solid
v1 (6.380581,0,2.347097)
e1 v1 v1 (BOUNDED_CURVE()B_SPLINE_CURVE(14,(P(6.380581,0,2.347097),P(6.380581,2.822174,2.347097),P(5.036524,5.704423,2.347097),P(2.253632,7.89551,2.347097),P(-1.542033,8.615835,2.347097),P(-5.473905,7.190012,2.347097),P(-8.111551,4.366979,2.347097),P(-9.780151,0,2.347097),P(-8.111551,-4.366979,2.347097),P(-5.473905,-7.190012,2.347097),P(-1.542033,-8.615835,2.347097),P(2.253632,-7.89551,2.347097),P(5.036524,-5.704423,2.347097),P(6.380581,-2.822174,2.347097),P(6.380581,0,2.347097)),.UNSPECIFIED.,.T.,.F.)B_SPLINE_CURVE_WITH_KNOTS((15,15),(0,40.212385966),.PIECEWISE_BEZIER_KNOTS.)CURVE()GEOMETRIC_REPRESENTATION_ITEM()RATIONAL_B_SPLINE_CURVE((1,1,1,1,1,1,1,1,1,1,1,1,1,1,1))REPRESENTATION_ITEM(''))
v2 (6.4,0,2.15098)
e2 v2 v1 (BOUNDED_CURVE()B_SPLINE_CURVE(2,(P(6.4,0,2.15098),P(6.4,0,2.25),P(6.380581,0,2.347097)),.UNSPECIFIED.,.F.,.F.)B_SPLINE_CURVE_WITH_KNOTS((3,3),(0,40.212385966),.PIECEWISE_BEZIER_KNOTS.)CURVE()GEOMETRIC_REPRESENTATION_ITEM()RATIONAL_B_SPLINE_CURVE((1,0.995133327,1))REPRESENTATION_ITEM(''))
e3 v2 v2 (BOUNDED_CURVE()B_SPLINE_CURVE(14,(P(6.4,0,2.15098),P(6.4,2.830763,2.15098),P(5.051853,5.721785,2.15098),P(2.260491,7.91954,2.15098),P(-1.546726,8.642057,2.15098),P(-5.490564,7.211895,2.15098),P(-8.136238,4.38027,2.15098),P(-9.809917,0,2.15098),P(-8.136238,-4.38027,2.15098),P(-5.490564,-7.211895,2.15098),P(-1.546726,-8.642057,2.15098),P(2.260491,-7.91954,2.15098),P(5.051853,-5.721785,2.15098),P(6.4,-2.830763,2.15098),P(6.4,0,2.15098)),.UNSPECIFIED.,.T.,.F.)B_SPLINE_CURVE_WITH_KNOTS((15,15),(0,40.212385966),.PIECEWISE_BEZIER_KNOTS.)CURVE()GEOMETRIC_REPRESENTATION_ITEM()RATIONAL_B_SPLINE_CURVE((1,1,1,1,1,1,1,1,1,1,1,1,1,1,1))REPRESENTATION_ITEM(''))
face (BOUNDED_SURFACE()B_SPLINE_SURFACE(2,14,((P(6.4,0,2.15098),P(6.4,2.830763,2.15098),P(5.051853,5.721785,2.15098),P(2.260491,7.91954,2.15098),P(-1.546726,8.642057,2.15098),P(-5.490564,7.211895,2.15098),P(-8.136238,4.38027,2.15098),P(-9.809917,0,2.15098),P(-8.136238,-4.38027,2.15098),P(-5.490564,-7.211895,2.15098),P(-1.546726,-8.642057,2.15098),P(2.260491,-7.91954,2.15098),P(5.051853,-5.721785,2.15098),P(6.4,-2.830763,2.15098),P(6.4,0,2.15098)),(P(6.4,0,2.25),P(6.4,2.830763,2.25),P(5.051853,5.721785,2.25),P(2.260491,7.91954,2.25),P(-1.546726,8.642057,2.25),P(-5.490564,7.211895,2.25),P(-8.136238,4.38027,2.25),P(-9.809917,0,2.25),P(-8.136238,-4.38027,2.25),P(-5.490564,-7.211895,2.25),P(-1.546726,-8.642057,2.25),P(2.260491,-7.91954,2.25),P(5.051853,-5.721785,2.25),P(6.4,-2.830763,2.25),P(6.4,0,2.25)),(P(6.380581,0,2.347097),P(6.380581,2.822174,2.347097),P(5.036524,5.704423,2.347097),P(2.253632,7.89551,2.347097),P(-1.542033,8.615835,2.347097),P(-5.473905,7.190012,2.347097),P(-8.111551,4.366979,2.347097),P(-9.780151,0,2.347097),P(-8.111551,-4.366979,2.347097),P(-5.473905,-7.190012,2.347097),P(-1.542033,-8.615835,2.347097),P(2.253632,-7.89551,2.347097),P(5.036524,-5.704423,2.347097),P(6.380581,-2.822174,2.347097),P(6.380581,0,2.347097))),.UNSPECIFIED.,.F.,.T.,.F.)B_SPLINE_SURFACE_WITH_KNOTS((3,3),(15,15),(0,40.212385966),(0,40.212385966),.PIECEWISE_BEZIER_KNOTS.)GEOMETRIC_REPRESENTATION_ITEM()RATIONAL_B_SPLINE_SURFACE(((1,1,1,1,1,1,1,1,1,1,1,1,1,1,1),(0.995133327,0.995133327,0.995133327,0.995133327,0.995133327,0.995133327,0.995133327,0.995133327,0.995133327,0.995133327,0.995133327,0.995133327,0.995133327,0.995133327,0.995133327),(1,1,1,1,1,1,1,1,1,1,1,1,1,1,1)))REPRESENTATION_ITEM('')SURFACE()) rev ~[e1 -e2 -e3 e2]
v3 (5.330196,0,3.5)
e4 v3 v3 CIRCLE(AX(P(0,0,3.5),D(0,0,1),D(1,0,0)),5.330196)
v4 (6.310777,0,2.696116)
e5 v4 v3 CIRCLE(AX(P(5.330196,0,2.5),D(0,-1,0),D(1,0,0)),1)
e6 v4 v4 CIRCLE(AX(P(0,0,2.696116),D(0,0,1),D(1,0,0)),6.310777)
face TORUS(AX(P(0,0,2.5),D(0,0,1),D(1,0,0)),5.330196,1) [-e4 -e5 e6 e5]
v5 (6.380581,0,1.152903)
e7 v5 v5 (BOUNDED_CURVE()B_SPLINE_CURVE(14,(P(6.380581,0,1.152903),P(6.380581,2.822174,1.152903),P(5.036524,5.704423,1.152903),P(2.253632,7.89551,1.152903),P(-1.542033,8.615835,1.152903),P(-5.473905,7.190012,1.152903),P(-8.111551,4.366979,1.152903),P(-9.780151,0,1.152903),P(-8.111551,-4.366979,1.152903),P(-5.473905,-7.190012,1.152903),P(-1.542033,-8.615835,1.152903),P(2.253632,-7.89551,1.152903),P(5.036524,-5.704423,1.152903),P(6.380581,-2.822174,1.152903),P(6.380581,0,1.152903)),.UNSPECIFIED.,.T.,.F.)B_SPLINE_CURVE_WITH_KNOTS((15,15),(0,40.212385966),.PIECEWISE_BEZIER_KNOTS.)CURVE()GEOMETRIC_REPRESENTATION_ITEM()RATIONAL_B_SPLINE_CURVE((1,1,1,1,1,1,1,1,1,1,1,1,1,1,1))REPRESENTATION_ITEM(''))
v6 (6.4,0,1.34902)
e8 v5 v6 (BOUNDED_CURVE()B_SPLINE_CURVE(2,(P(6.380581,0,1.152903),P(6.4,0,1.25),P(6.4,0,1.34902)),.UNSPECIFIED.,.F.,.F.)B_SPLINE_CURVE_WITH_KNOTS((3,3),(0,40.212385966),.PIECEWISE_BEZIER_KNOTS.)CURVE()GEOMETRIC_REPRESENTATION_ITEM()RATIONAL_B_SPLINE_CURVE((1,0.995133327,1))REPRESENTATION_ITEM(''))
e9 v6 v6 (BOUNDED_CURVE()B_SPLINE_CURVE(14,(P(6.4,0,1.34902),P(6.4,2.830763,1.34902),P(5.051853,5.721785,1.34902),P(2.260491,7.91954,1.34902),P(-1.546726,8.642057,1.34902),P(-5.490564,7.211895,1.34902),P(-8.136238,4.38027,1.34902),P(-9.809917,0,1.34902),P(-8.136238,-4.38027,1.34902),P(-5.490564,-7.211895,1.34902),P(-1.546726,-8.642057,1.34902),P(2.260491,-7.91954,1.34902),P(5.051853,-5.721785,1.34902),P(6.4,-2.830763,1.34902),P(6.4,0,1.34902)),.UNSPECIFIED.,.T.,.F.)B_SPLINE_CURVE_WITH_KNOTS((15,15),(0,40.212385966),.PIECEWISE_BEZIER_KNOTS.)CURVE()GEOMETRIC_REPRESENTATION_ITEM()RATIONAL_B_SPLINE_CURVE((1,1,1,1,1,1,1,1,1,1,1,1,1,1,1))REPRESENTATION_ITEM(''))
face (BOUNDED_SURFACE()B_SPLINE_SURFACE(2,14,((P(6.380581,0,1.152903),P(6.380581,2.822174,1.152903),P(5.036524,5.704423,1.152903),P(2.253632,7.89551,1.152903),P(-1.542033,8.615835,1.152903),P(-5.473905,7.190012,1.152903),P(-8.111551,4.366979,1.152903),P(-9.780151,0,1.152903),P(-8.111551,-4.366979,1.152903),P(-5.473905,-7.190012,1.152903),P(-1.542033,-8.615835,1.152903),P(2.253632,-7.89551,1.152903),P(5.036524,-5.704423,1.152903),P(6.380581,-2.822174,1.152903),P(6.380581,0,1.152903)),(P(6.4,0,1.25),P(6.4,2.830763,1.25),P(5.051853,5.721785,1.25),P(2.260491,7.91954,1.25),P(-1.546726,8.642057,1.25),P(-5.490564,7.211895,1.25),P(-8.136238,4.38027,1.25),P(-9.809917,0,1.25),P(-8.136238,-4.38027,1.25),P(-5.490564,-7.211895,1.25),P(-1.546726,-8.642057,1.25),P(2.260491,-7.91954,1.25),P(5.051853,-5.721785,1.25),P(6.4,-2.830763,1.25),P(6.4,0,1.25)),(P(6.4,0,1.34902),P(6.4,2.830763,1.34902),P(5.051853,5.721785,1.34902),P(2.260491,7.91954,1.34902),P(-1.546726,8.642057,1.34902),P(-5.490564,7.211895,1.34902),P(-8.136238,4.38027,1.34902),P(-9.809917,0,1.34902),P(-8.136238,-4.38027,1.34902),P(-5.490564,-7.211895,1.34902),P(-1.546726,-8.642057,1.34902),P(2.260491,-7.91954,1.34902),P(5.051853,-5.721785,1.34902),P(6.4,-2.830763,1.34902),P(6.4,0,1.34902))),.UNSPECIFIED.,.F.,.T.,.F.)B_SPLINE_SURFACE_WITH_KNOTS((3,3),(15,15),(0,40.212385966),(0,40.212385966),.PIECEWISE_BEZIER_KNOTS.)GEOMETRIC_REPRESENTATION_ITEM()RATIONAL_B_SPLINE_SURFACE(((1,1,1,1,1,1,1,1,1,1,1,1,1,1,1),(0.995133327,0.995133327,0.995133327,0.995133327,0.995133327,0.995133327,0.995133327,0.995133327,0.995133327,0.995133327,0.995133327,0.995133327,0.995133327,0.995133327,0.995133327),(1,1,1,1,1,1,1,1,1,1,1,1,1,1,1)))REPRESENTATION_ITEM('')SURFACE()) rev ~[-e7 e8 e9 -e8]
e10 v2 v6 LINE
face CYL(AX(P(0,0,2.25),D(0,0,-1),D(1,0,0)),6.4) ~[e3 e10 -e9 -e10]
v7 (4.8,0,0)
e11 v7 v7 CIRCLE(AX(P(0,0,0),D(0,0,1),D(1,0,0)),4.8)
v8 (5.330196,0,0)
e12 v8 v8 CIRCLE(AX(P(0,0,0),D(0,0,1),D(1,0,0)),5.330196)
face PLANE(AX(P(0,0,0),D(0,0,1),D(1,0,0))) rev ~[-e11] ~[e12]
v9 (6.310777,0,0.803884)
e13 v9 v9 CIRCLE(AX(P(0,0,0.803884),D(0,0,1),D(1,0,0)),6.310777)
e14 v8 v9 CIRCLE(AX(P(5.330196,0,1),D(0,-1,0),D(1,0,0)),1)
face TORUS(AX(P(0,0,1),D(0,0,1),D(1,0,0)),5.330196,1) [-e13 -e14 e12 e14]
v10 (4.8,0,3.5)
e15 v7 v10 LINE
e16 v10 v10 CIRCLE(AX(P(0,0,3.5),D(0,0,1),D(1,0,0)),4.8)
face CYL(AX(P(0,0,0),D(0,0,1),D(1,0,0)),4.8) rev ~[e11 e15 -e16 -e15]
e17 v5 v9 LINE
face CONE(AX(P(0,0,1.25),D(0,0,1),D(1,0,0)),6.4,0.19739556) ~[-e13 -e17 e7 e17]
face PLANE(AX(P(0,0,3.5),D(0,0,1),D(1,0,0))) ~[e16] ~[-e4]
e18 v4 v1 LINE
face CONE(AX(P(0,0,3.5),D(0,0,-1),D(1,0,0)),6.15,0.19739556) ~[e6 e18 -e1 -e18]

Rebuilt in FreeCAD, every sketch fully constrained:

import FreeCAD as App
import Part
import Sketcher
Q = App.Units.Quantity


def edges_at(feature, points):
    """Names of the edges that pass closest to the given points."""
    edges = feature.Shape.Edges
    near = lambda p: min(range(len(edges)), key=lambda i: edges[i].distToShape(Part.Vertex(*p))[0])
    return sorted({f"Edge{near(p) + 1}" for p in points})


def add_polygon(sketch, points):
    """Adds a closed chain of lines whose ends are joined by coincident constraints."""
    first, n = sketch.GeometryCount, len(points)
    for a, b in zip(points, points[1:] + points[:1]):
        sketch.addGeometry(Part.LineSegment(App.Vector(*a, 0), App.Vector(*b, 0)), False)
    for i in range(n):
        sketch.addConstraint(Sketcher.Constraint("Coincident", first + i, 2, first + (i + 1) % n, 1))

doc = App.newDocument("Part")
body = doc.addObject("PartDesign::Body", "Body")

# Sketch on XZ plane
sketch1 = doc.addObject("Sketcher::SketchObject", "Sketch")
body.addObject(sketch1)
sketch1.AttachmentSupport = (doc.XZ_Plane, [""])
sketch1.MapMode = "FlatFace"
add_polygon(sketch1, [(6.2, 0), (4.8, 0), (4.8, 3.5), (6.2, 3.5), (6.4, 2.2), (6.4, 1.2)])  # lines 0-5
sketch1.addConstraint([
    Sketcher.Constraint("Horizontal", 0),
    Sketcher.Constraint("Vertical", 1),
    Sketcher.Constraint("Horizontal", 2),
    Sketcher.Constraint("Vertical", 4),
    Sketcher.Constraint("PointOnObject", 0, 2, -1),
    Sketcher.Constraint("Vertical", 2, 2, 5, 2),
    Sketcher.Constraint("Equal", 3, 5),
    Sketcher.Constraint("DistanceY", 4, 2, 4, 1, Q("1 mm")),
    Sketcher.Constraint("DistanceY", 1, 1, 1, 2, Q("3.5 mm")),
    Sketcher.Constraint("DistanceX", -1, 1, 0, 2, Q("4.8 mm")),
    Sketcher.Constraint("DistanceX", -1, 1, 3, 2, Q("6.4 mm")),
    Sketcher.Constraint("DistanceX", 2, 2, 3, 2, Q("0.25 mm")),
])
revolution = doc.addObject("PartDesign::Revolution", "Revolution")
body.addObject(revolution)
revolution.Profile = sketch1
revolution.ReferenceAxis = (sketch1, ["V_Axis"])
revolution.Angle = 360
doc.recompute()

fillet = doc.addObject("PartDesign::Fillet", "Fillet")
body.addObject(fillet)
fillet.Base = (revolution, edges_at(revolution, [
    (-5.734, -2.224, 0),
    (-5.967, -2.314, 1.25),
    (-5.967, -2.314, 2.25),
    (-5.734, -2.224, 3.5),
]))
fillet.Radius = 1

doc.recompute()
